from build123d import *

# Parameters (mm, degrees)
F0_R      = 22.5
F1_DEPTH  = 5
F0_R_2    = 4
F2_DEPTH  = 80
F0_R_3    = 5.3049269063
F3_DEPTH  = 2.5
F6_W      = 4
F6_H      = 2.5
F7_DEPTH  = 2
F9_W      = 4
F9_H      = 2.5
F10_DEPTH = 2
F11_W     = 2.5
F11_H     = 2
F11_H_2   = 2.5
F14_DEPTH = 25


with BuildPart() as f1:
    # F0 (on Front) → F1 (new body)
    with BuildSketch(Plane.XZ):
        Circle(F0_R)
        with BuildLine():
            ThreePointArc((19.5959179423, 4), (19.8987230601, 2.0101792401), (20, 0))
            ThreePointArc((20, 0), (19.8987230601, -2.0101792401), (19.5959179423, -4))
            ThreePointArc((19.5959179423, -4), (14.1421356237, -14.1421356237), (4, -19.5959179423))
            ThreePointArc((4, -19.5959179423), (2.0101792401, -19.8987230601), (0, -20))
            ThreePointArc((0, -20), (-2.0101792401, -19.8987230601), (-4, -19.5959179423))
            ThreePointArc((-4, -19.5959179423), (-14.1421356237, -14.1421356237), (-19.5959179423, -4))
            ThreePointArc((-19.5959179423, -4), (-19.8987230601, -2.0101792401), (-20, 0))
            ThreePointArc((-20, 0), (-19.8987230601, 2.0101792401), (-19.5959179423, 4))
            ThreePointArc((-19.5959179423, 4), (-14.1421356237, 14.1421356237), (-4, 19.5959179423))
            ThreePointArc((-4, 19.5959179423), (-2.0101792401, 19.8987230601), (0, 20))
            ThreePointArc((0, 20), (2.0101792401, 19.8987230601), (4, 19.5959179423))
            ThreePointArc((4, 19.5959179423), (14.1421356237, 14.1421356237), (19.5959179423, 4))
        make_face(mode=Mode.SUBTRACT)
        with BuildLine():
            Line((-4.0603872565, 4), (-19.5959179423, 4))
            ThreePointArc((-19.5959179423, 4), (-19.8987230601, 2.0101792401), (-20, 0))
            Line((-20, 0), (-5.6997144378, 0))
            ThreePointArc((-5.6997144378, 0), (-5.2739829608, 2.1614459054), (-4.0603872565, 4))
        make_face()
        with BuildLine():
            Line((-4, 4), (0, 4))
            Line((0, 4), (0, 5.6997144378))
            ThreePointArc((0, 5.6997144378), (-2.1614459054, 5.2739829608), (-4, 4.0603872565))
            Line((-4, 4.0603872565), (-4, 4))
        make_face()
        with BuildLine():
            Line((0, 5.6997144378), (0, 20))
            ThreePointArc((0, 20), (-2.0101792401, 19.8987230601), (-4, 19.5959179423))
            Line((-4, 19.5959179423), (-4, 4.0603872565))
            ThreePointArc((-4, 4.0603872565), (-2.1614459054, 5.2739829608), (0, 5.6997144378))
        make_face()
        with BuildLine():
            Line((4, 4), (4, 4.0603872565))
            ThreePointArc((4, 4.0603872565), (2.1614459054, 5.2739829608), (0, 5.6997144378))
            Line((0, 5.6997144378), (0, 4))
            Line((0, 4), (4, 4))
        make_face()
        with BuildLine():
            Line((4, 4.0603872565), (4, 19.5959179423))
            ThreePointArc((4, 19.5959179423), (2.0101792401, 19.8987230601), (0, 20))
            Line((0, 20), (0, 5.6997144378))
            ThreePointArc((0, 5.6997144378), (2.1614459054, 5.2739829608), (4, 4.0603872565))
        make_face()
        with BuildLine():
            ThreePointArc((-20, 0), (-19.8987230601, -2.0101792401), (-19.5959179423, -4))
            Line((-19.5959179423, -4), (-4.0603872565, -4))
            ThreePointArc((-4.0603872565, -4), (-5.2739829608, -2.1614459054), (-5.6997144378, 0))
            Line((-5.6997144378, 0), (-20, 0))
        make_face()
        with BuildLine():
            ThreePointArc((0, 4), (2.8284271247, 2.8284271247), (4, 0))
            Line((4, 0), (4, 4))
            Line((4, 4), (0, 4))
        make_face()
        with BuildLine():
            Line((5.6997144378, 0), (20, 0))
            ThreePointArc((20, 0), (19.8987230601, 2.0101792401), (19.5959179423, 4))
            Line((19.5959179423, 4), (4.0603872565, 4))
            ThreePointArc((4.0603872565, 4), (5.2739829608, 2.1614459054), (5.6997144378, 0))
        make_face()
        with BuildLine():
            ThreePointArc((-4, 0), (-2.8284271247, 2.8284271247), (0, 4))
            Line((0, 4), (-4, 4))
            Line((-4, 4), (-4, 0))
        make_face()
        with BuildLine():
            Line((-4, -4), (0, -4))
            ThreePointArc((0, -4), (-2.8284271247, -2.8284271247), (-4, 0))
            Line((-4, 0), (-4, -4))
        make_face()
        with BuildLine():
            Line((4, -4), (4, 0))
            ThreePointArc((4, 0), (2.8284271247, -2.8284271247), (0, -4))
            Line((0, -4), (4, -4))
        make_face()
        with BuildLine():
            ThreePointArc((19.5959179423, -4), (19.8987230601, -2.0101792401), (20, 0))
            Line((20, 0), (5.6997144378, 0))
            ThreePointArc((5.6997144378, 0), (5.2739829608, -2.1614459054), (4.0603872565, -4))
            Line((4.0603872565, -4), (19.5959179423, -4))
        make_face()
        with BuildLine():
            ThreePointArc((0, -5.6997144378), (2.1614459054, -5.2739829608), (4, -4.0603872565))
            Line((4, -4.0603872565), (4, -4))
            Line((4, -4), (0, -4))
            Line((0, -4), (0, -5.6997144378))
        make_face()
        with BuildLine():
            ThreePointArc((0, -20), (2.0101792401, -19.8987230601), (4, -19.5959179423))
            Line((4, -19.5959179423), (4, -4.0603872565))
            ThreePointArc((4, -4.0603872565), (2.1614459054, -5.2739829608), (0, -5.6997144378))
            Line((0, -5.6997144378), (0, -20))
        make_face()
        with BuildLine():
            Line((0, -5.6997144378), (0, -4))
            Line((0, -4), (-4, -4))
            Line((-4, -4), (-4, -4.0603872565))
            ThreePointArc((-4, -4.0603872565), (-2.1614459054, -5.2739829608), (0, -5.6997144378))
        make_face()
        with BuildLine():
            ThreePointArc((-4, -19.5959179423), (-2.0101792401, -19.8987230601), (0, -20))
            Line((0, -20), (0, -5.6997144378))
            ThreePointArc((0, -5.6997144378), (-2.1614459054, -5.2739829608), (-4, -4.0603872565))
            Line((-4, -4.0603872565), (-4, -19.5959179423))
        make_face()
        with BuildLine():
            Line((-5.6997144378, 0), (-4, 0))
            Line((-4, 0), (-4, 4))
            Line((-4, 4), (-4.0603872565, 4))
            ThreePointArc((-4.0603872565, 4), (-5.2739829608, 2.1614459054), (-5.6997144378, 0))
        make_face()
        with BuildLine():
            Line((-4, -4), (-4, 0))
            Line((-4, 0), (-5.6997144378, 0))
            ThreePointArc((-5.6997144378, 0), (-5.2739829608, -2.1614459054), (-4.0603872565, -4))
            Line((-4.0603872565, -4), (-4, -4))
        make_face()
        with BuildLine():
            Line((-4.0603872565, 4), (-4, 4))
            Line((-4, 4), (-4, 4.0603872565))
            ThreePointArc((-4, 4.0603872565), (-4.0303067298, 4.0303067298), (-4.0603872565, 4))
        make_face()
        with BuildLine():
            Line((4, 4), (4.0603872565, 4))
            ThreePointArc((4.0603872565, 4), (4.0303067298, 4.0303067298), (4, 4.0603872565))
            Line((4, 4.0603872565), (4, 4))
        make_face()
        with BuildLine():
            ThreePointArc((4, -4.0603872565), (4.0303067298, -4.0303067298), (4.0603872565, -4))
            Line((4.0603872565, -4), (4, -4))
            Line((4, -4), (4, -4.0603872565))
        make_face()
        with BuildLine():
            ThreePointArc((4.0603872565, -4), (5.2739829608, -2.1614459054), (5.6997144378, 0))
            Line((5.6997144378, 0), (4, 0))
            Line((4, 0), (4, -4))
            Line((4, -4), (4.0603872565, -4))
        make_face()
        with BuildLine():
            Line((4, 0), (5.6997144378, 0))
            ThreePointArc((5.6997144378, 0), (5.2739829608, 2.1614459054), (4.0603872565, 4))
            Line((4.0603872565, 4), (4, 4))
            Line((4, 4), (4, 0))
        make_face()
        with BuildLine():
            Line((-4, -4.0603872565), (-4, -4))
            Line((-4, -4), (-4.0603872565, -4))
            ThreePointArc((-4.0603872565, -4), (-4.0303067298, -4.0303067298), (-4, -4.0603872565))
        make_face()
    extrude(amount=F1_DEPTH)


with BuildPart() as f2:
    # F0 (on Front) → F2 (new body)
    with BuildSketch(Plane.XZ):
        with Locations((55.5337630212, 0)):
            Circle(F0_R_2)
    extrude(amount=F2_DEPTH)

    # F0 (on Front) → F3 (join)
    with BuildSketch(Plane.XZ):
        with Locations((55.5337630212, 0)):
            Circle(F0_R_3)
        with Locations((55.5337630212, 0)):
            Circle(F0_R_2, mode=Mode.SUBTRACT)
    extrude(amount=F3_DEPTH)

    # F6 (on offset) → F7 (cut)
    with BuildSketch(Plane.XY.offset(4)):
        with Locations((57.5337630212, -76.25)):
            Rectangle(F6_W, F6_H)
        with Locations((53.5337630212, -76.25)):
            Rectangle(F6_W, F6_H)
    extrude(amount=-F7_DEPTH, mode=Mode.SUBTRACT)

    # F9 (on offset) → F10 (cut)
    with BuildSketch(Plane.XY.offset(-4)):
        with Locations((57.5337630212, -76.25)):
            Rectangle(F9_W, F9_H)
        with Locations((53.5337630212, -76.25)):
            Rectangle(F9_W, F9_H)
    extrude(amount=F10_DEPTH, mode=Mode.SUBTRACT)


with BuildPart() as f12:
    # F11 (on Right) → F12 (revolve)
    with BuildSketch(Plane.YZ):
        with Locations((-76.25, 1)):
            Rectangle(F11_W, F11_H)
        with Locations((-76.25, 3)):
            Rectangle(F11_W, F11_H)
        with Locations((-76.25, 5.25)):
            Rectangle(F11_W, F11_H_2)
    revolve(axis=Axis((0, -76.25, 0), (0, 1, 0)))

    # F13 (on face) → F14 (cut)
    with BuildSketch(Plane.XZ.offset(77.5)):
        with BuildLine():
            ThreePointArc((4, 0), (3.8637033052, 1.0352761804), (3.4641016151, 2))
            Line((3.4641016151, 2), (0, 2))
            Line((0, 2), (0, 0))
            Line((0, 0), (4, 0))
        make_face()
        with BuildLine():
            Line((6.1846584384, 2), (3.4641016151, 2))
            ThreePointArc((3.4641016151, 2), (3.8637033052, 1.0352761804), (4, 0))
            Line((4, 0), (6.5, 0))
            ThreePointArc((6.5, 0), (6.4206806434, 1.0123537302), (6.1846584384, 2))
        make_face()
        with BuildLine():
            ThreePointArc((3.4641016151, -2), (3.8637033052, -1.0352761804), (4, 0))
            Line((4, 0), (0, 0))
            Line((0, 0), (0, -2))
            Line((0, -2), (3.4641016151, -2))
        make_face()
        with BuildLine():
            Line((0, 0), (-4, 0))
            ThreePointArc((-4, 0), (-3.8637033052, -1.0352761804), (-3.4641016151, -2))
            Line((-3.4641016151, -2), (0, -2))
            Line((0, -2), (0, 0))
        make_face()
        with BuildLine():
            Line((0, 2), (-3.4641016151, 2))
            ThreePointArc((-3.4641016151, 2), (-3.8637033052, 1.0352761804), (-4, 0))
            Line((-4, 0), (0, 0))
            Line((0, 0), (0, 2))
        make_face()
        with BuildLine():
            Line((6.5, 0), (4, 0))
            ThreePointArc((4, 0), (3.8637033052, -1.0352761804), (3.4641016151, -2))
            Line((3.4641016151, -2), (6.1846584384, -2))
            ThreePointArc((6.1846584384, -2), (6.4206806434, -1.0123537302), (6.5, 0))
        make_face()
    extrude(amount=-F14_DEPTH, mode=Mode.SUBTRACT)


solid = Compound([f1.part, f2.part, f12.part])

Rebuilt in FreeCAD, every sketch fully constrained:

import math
import FreeCAD as App
import Part
import Sketcher


def add_polygon(sketch, points):
    """Adds a closed chain of lines whose ends are joined by coincident constraints."""
    first, n = sketch.GeometryCount, len(points)
    for a, b in zip(points, points[1:] + points[:1]):
        sketch.addGeometry(Part.LineSegment(App.Vector(*a, 0), App.Vector(*b, 0)), False)
    for i in range(n):
        sketch.addConstraint(Sketcher.Constraint("Coincident", first + i, 2, first + (i + 1) % n, 1))

doc = App.newDocument("Part")
body = doc.addObject("PartDesign::Body", "Body")

# Sketch on XZ plane
sketch1 = body.newObject("Sketcher::SketchObject", "Sketch")
sketch1.AttachmentSupport = (doc.getObject("XZ_Plane"), [""])
sketch1.MapMode = "FlatFace"
sketch1.addGeometry([
    Part.Circle(App.Vector(0, 0, 0), App.Vector(0, 0, 1), 22.5),  # 0
    Part.LineSegment(App.Vector(-19.6, -4, 0), App.Vector(-4.06, -4, 0)),  # 1
    Part.ArcOfCircle(Part.Circle(App.Vector(0, 0, 0), App.Vector(0, 0, 1), 5.7), math.radians(-135.43), math.radians(-134.57)),  # 2
    Part.LineSegment(App.Vector(-4, -4.06, 0), App.Vector(-4, -19.6, 0)),  # 3
    Part.ArcOfCircle(Part.Circle(App.Vector(0, 0, 0), App.Vector(0, 0, 1), 20), math.radians(-168), math.radians(-102)),  # 4
    Part.ArcOfCircle(Part.Circle(App.Vector(0, 0, 0), App.Vector(0, 0, 1), 5.7), math.radians(-45.43), math.radians(-44.57)),  # 5
    Part.LineSegment(App.Vector(4.06, -4, 0), App.Vector(19.6, -4, 0)),  # 6
    Part.ArcOfCircle(Part.Circle(App.Vector(0, 0, 0), App.Vector(0, 0, 1), 20), math.radians(-78), math.radians(-12)),  # 7
    Part.LineSegment(App.Vector(4, -19.6, 0), App.Vector(4, -4.06, 0)),  # 8
    Part.LineSegment(App.Vector(-4, 19.6, 0), App.Vector(-4, 4.06, 0)),  # 9
    Part.ArcOfCircle(Part.Circle(App.Vector(0, 0, 0), App.Vector(0, 0, 1), 5.7), math.radians(134.57), math.radians(135.43)),  # 10
    Part.LineSegment(App.Vector(-4.06, 4, 0), App.Vector(-19.6, 4, 0)),  # 11
    Part.ArcOfCircle(Part.Circle(App.Vector(0, 0, 0), App.Vector(0, 0, 1), 20), math.radians(102), math.radians(168)),  # 12
    Part.ArcOfCircle(Part.Circle(App.Vector(0, 0, 0), App.Vector(0, 0, 1), 4), math.radians(0), math.radians(90)),  # 13
    Part.ArcOfCircle(Part.Circle(App.Vector(0, 0, 0), App.Vector(0, 0, 1), 4), math.radians(-90), math.radians(0)),  # 14
    Part.ArcOfCircle(Part.Circle(App.Vector(0, 0, 0), App.Vector(0, 0, 1), 4), math.radians(180), math.radians(270)),  # 15
    Part.ArcOfCircle(Part.Circle(App.Vector(0, 0, 0), App.Vector(0, 0, 1), 4), math.radians(90), math.radians(180)),  # 16
    Part.LineSegment(App.Vector(19.6, 4, 0), App.Vector(4.06, 4, 0)),  # 17
    Part.ArcOfCircle(Part.Circle(App.Vector(0, 0, 0), App.Vector(0, 0, 1), 5.7), math.radians(44.57), math.radians(45.43)),  # 18
    Part.LineSegment(App.Vector(4, 4.06, 0), App.Vector(4, 19.6, 0)),  # 19
    Part.ArcOfCircle(Part.Circle(App.Vector(0, 0, 0), App.Vector(0, 0, 1), 20), math.radians(12), math.radians(78)),  # 20
], False)
sketch1.addConstraint([
    Sketcher.Constraint("Coincident", 1, 2, 2, 1),
    Sketcher.Constraint("Coincident", 2, 2, 3, 1),
    Sketcher.Constraint("Coincident", 3, 2, 4, 2),
    Sketcher.Constraint("Coincident", 4, 1, 1, 1),
    Sketcher.Constraint("Coincident", 5, 2, 6, 1),
    Sketcher.Constraint("Coincident", 6, 2, 7, 2),
    Sketcher.Constraint("Coincident", 7, 1, 8, 1),
    Sketcher.Constraint("Coincident", 8, 2, 5, 1),
    Sketcher.Constraint("Coincident", 9, 2, 10, 1),
    Sketcher.Constraint("Coincident", 10, 2, 11, 1),
    Sketcher.Constraint("Coincident", 11, 2, 12, 2),
    Sketcher.Constraint("Coincident", 12, 1, 9, 1),
    Sketcher.Constraint("Tangent", 13, 1, 14, 2),
    Sketcher.Constraint("Tangent", 14, 1, 15, 2),
    Sketcher.Constraint("Tangent", 15, 1, 16, 2),
    Sketcher.Constraint("Tangent", 16, 1, 13, 2),
    Sketcher.Constraint("Coincident", 17, 2, 18, 1),
    Sketcher.Constraint("Coincident", 18, 2, 19, 1),
    Sketcher.Constraint("Coincident", 19, 2, 20, 2),
    Sketcher.Constraint("Coincident", 20, 1, 17, 1),
    Sketcher.Constraint("Horizontal", 1),
    Sketcher.Constraint("Vertical", 3),
    Sketcher.Constraint("Horizontal", 6),
    Sketcher.Constraint("Vertical", 8),
    Sketcher.Constraint("Vertical", 9),
    Sketcher.Constraint("Horizontal", 11),
    Sketcher.Constraint("Horizontal", 17),
    Sketcher.Constraint("Vertical", 19),
    Sketcher.Constraint("Coincident", 0, 3, -1, 1),
    Sketcher.Constraint("Coincident", 2, 3, -1, 1),
    Sketcher.Constraint("Coincident", 4, 3, -1, 1),
    Sketcher.Constraint("Coincident", 5, 3, -1, 1),
    Sketcher.Constraint("Coincident", 7, 3, -1, 1),
    Sketcher.Constraint("Coincident", 10, 3, -1, 1),
    Sketcher.Constraint("Coincident", 12, 3, -1, 1),
    Sketcher.Constraint("Coincident", 13, 3, -1, 1),
    Sketcher.Constraint("Coincident", 18, 3, -1, 1),
    Sketcher.Constraint("Coincident", 20, 3, -1, 1),
    Sketcher.Constraint("Equal", 2, 5),
    Sketcher.Constraint("Equal", 4, 7),
    Sketcher.Constraint("Equal", 5, 10),
    Sketcher.Constraint("Equal", 7, 12),
    Sketcher.Constraint("Equal", 13, 14),
    Sketcher.Constraint("Equal", 10, 18),
    Sketcher.Constraint("Equal", 12, 20),
    Sketcher.Constraint("PointOnObject", 13, 1, -1),
    Sketcher.Constraint("PointOnObject", 14, 1, -2),
    Sketcher.Constraint("PointOnObject", 15, 1, -1),
    Sketcher.Constraint("PointOnObject", 16, 1, -2),
    Sketcher.Constraint("Horizontal", 4, 1, 5, 2),
    Sketcher.Constraint("Horizontal", 3, 2, 7, 1),
    Sketcher.Constraint("Horizontal", 6, 2, 14, 1),
    Sketcher.Constraint("Horizontal", 11, 2, 16, 1),
    Sketcher.Constraint("Horizontal", 16, 1, 17, 2),
    Sketcher.Constraint("Horizontal", 9, 2, 18, 2),
    Sketcher.Constraint("Vertical", 3, 2, 9, 2),
    Sketcher.Constraint("Vertical", 8, 2, 13, 1),
    Sketcher.Constraint("Diameter", 0, 45.0),
    Sketcher.Constraint("Radius", 4, 20.0),
    Sketcher.Constraint("Radius", 13, 4.0),
    Sketcher.Constraint("Radius", 2, 5.699715),
])
pad1 = body.newObject("PartDesign::Pad", "Pad")
pad1.Profile = sketch1
pad1.Length = 5
body2 = doc.addObject("PartDesign::Body", "Body001")

# Sketch on XZ plane
sketch2 = body2.newObject("Sketcher::SketchObject", "Sketch001")
sketch2.AttachmentSupport = (doc.getObject("XZ_Plane001"), [""])
sketch2.MapMode = "FlatFace"
sketch2.addGeometry(Part.Circle(App.Vector(55.5, 0, 0), App.Vector(0, 0, 1), 4), False)
sketch2.addConstraint([
    Sketcher.Constraint("PointOnObject", 0, 3, -1),
    Sketcher.Constraint("Diameter", 0, 8.0),
    Sketcher.Constraint("DistanceX", -1, 1, 0, 3, 55.533763),
])
pad2 = body2.newObject("PartDesign::Pad", "Pad001")
pad2.Profile = sketch2
pad2.Length = 80

# Sketch on XZ plane
sketch3 = body2.newObject("Sketcher::SketchObject", "Sketch002")
sketch3.AttachmentSupport = (doc.getObject("XZ_Plane001"), [""])
sketch3.MapMode = "FlatFace"
sketch3.addGeometry([
    Part.Circle(App.Vector(55.5, 0, 0), App.Vector(0, 0, 1), 5.3),
    Part.Circle(App.Vector(55.5, 0, 0), App.Vector(0, 0, 1), 4),
], False)
sketch3.addConstraint([
    Sketcher.Constraint("Coincident", 1, 3, 0, 3),
    Sketcher.Constraint("PointOnObject", 0, 3, -1),
    Sketcher.Constraint("Diameter", 1, 8.0),
    Sketcher.Constraint("Diameter", 0, 10.609854),
    Sketcher.Constraint("DistanceX", -1, 1, 0, 3, 55.533763),
])
pad3 = body2.newObject("PartDesign::Pad", "Pad002")
pad3.Profile = sketch3
pad3.Length = 2.5

# Sketch on XY plane
sketch4 = body2.newObject("Sketcher::SketchObject", "Sketch003")
sketch4.AttachmentSupport = (doc.getObject("XY_Plane001"), [""])
sketch4.MapMode = "FlatFace"
sketch4.AttachmentOffset = App.Placement(App.Vector(0, 0, 4), App.Rotation())
add_polygon(sketch4, [(59.5, -77.5), (59.5, -75), (51.5, -75), (51.5, -77.5)])  # lines 0-3
sketch4.addConstraint([
    Sketcher.Constraint("Vertical", 0),
    Sketcher.Constraint("Horizontal", 1),
    Sketcher.Constraint("Vertical", 2),
    Sketcher.Constraint("Horizontal", 3),
    Sketcher.Constraint("DistanceX", 1, 2, 1, 1, 8.0),
    Sketcher.Constraint("DistanceY", 0, 1, 0, 2, 2.5),
    Sketcher.Constraint("DistanceY", 0, 2, -1, 1, 75.0),
    Sketcher.Constraint("DistanceX", -1, 1, 0, 2, 59.533763),
])
pocket1 = body2.newObject("PartDesign::Pocket", "Pocket")
pocket1.Profile = sketch4
pocket1.Length = 2

# Sketch on XY plane
sketch5 = body2.newObject("Sketcher::SketchObject", "Sketch004")
sketch5.AttachmentSupport = (doc.getObject("XY_Plane001"), [""])
sketch5.MapMode = "FlatFace"
sketch5.AttachmentOffset = App.Placement(App.Vector(0, 0, -4), App.Rotation())
add_polygon(sketch5, [(59.5, -77.5), (59.5, -75), (51.5, -75), (51.5, -77.5)])  # lines 0-3
sketch5.addConstraint([
    Sketcher.Constraint("Vertical", 0),
    Sketcher.Constraint("Horizontal", 1),
    Sketcher.Constraint("Vertical", 2),
    Sketcher.Constraint("Horizontal", 3),
    Sketcher.Constraint("DistanceX", 1, 2, 1, 1, 8.0),
    Sketcher.Constraint("DistanceY", 0, 1, 0, 2, 2.5),
    Sketcher.Constraint("DistanceY", 0, 2, -1, 1, 75.0),
    Sketcher.Constraint("DistanceX", -1, 1, 0, 2, 59.533763),
])
pocket2 = body2.newObject("PartDesign::Pocket", "Pocket001")
pocket2.Profile = sketch5
pocket2.Length = 2
pocket2.Reversed = True
body3 = doc.addObject("PartDesign::Body", "Body002")

# Sketch on YZ plane
sketch6 = body3.newObject("Sketcher::SketchObject", "Sketch005")
sketch6.AttachmentSupport = (doc.getObject("YZ_Plane002"), [""])
sketch6.MapMode = "FlatFace"
add_polygon(sketch6, [(-77.5, 0), (-75, 0), (-75, 6.5), (-77.5, 6.5)])  # lines 0-3
sketch6.addConstraint([
    Sketcher.Constraint("Horizontal", 0),
    Sketcher.Constraint("Vertical", 1),
    Sketcher.Constraint("Horizontal", 2),
    Sketcher.Constraint("Vertical", 3),
    Sketcher.Constraint("PointOnObject", 0, 2, -1),
    Sketcher.Constraint("DistanceX", 0, 1, 0, 2, 2.5),
    Sketcher.Constraint("DistanceY", 1, 1, 1, 2, 6.5),
    Sketcher.Constraint("DistanceX", 0, 2, -1, 1, 75.0),
])
revolution = body3.newObject("PartDesign::Revolution", "Revolution")
revolution.Profile = sketch6
revolution.ReferenceAxis = (sketch6, ["H_Axis"])
revolution.Angle = 360

# Sketch on XZ plane
sketch7 = body3.newObject("Sketcher::SketchObject", "Sketch006")
sketch7.AttachmentSupport = (doc.getObject("XZ_Plane002"), [""])
sketch7.MapMode = "FlatFace"
sketch7.AttachmentOffset = App.Placement(App.Vector(0, 0, 77.5), App.Rotation())
sketch7.addGeometry([
    Part.ArcOfCircle(Part.Circle(App.Vector(0, 0, 0), App.Vector(0, 0, 1), 4), math.radians(180), math.radians(210)),  # 0
    Part.LineSegment(App.Vector(-3.5, -2, 0), App.Vector(6.2, -2, 0)),  # 1
    Part.ArcOfCircle(Part.Circle(App.Vector(0, 0, 0), App.Vector(0, 0, 1), 6.5), math.radians(-17.92), math.radians(0)),  # 2
    Part.ArcOfCircle(Part.Circle(App.Vector(0, 0, 0), App.Vector(0, 0, 1), 6.5), math.radians(0), math.radians(17.92)),  # 3
    Part.LineSegment(App.Vector(6.2, 2, 0), App.Vector(-3.5, 2, 0)),  # 4
    Part.ArcOfCircle(Part.Circle(App.Vector(0, 0, 0), App.Vector(0, 0, 1), 4), math.radians(150), math.radians(180)),  # 5
], False)
sketch7.addConstraint([
    Sketcher.Constraint("Coincident", 0, 2, 1, 1),
    Sketcher.Constraint("Coincident", 1, 2, 2, 1),
    Sketcher.Constraint("Tangent", 2, 2, 3, 1),
    Sketcher.Constraint("Coincident", 3, 2, 4, 1),
    Sketcher.Constraint("Coincident", 4, 2, 5, 1),
    Sketcher.Constraint("Tangent", 5, 2, 0, 1),
    Sketcher.Constraint("Horizontal", 1),
    Sketcher.Constraint("Horizontal", 4),
    Sketcher.Constraint("Coincident", 0, 3, -1, 1),
    Sketcher.Constraint("Coincident", 2, 3, -1, 1),
    Sketcher.Constraint("Equal", 2, 3),
    Sketcher.Constraint("Equal", 0, 5),
    Sketcher.Constraint("PointOnObject", 2, 2, -1),
    Sketcher.Constraint("PointOnObject", 5, 2, -1),
    Sketcher.Constraint("Vertical", 1, 2, 3, 2),
    Sketcher.Constraint("Radius", 0, 4.0),
    Sketcher.Constraint("Radius", 2, 6.5),
    Sketcher.Constraint("DistanceY", 0, 2, -1, 1, 2.0),
])
pocket3 = body3.newObject("PartDesign::Pocket", "Pocket002")
pocket3.Profile = sketch7
pocket3.Length = 25

doc.recompute()
